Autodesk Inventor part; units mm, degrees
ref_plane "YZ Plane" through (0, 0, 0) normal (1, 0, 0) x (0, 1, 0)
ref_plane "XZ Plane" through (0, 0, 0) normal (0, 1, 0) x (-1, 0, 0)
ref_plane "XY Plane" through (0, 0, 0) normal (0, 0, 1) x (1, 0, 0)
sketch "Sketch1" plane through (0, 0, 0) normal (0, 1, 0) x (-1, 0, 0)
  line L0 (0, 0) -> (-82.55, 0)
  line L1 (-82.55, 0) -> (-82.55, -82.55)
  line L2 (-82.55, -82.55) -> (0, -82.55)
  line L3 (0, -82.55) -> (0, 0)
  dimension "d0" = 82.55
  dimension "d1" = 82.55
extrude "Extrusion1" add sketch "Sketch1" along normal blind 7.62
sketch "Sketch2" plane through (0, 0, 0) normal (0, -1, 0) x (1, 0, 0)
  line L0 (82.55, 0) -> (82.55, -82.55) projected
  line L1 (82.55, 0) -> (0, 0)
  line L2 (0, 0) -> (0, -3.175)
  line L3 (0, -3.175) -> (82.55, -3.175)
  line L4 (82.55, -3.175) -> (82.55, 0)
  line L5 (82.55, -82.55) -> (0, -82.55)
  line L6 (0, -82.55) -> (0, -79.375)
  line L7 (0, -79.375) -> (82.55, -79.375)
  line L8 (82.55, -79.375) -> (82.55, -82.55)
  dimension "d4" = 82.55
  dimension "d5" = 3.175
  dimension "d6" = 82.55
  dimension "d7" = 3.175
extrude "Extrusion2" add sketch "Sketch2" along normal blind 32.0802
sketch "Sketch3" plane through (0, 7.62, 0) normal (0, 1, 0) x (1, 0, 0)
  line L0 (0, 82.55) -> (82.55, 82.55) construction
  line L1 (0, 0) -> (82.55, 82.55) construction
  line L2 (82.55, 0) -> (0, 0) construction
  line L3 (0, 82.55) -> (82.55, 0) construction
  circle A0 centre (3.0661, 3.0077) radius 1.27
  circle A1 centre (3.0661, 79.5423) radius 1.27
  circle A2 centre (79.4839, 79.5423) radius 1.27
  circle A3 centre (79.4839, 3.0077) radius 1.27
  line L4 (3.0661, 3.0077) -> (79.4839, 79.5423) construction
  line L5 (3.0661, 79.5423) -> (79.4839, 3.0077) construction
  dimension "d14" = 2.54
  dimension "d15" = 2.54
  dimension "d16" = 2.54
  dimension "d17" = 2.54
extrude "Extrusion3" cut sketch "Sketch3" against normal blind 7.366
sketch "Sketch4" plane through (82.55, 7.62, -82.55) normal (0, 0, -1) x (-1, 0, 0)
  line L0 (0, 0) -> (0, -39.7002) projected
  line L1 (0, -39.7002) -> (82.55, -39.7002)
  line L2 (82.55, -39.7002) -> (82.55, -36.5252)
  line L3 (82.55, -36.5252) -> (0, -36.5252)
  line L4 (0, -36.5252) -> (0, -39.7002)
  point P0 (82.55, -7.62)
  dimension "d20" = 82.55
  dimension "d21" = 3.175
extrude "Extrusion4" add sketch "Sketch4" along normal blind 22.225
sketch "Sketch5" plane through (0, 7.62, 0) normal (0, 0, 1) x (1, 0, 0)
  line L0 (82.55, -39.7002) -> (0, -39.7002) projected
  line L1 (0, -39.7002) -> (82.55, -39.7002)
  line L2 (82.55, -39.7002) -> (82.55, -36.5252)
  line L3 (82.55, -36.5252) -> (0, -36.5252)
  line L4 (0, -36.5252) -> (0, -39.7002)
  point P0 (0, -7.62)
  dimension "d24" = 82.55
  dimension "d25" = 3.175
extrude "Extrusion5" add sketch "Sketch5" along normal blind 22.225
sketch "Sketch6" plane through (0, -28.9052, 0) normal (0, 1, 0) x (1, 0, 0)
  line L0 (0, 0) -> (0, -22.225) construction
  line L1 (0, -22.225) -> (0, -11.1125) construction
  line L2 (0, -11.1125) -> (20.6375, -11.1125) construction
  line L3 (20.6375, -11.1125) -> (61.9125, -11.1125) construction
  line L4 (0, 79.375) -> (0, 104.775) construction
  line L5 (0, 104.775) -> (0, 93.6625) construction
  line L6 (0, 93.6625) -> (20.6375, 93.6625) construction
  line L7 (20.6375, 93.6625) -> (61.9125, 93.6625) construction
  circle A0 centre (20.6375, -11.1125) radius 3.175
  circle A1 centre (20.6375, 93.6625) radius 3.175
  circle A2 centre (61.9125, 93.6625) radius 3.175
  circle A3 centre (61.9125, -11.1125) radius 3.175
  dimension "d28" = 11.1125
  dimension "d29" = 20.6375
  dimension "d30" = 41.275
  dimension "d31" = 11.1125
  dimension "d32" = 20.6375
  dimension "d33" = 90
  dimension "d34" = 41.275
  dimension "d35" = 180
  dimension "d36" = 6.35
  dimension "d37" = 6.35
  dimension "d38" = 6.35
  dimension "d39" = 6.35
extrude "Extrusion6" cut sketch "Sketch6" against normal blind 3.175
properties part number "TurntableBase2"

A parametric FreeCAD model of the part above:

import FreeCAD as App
import Part
import Sketcher

V = App.Vector
Q = App.Units.Quantity


def add_polygon(sketch, points):
    """Adds a closed chain of lines whose ends are joined by coincident constraints."""
    first, n = sketch.GeometryCount, len(points)
    for a, b in zip(points, points[1:] + points[:1]):
        sketch.addGeometry(Part.LineSegment(App.Vector(*a, 0), App.Vector(*b, 0)), False)
    for i in range(n):
        sketch.addConstraint(Sketcher.Constraint("Coincident", first + i, 2, first + (i + 1) % n, 1))

doc = App.newDocument("Part")
body = doc.addObject("PartDesign::Body", "Body")

# Sketch on XZ plane
sketch1 = doc.addObject("Sketcher::SketchObject", "Sketch")
body.addObject(sketch1)
sketch1.AttachmentSupport = (doc.XZ_Plane, [""])
sketch1.MapMode = "FlatFace"
add_polygon(sketch1, [(0, -83), (0, 0), (83, 0), (83, -83)])  # lines 0-3
sketch1.addConstraint([
    Sketcher.Constraint("Vertical", 0),
    Sketcher.Constraint("Horizontal", 1),
    Sketcher.Constraint("Vertical", 2),
    Sketcher.Constraint("Horizontal", 3),
    Sketcher.Constraint("Coincident", 0, 2, -1, 1),
    Sketcher.Constraint("Equal", 3, 0),
    Sketcher.Constraint("DistanceX", 1, 1, 1, 2, Q("3.25 in")),
])
pad1 = doc.addObject("PartDesign::Pad", "Pad")
body.addObject(pad1)
pad1.Profile = sketch1
pad1.Length = Q("0.3 in")
pad1.Reversed = True

# Sketch on XZ plane
sketch2 = doc.addObject("Sketcher::SketchObject", "Sketch001")
body.addObject(sketch2)
sketch2.AttachmentSupport = (doc.XZ_Plane, [""])
sketch2.MapMode = "FlatFace"
add_polygon(sketch2, [(82.5, -82.5), (82.5, -79.4), (0, -79.4), (0, -82.5)])  # lines 0-3
add_polygon(sketch2, [(82.5, -3.2), (82.5, 0), (0, 0), (0, -3.2)])  # lines 4-7
sketch2.addConstraint([
    Sketcher.Constraint("Vertical", 0),
    Sketcher.Constraint("Horizontal", 1),
    Sketcher.Constraint("Vertical", 2),
    Sketcher.Constraint("Horizontal", 3),
    Sketcher.Constraint("Vertical", 4),
    Sketcher.Constraint("Horizontal", 5),
    Sketcher.Constraint("Vertical", 6),
    Sketcher.Constraint("Horizontal", 7),
    Sketcher.Constraint("Coincident", 5, 2, -1, 1),
    Sketcher.Constraint("PointOnObject", 1, 2, -2),
    Sketcher.Constraint("Vertical", 3, 2, 4, 2),
    Sketcher.Constraint("Equal", 2, 4),
    Sketcher.Constraint("DistanceX", 1, 2, 1, 1, Q("3.25 in")),
    Sketcher.Constraint("DistanceY", 0, 1, 0, 2, Q("0.125 in")),
    Sketcher.Constraint("DistanceY", 2, 2, -1, 1, Q("3.25 in")),
])
pad2 = doc.addObject("PartDesign::Pad", "Pad001")
body.addObject(pad2)
pad2.Profile = sketch2
pad2.Length = Q("1.263 in")

# Sketch on XZ plane
sketch3 = doc.addObject("Sketcher::SketchObject", "Sketch002")
body.addObject(sketch3)
sketch3.AttachmentSupport = (doc.XZ_Plane, [""])
sketch3.MapMode = "FlatFace"
sketch3.AttachmentOffset = App.Placement(V(0, 0, -0.3 * 25.4), App.Rotation())
sketch3.addGeometry([
    Part.Circle(V(3.1, -3, 0), V(0, 0, 1), 1.3),
    Part.Circle(V(3.1, -79.5, 0), V(0, 0, 1), 1.3),
    Part.Circle(V(79.5, -79.5, 0), V(0, 0, 1), 1.3),
    Part.Circle(V(79.5, -3, 0), V(0, 0, 1), 1.3),
], False)
sketch3.addConstraint([
    Sketcher.Constraint("Equal", 0, 1),
    Sketcher.Constraint("Equal", 1, 2),
    Sketcher.Constraint("Equal", 2, 3),
    Sketcher.Constraint("Horizontal", 1, 3, 2, 3),
    Sketcher.Constraint("Horizontal", 0, 3, 3, 3),
    Sketcher.Constraint("Vertical", 0, 3, 1, 3),
    Sketcher.Constraint("Vertical", 2, 3, 3, 3),
    Sketcher.Constraint("Diameter", 0, Q("0.1 in")),
    Sketcher.Constraint("DistanceX", -1, 1, 0, 3, Q("0.1207087 in")),
    Sketcher.Constraint("DistanceY", 0, 3, -1, 1, 3.0077),
    Sketcher.Constraint("DistanceY", 1, 3, -1, 1, 79.5423),
    Sketcher.Constraint("DistanceX", -1, 1, 2, 3, Q("3.1292913 in")),
])
pocket1 = doc.addObject("PartDesign::Pocket", "Pocket")
body.addObject(pocket1)
pocket1.Profile = sketch3
pocket1.Length = Q("0.29 in")
pocket1.Reversed = True

# Sketch on XY plane
sketch4 = doc.addObject("Sketcher::SketchObject", "Sketch003")
body.addObject(sketch4)
sketch4.AttachmentSupport = (doc.XY_Plane, [""])
sketch4.MapMode = "FlatFace"
sketch4.AttachmentOffset = App.Placement(V(0, 0, -3.25 * 25.4), App.Rotation())
add_polygon(sketch4, [(0, -28.9), (82.5, -28.9), (82.5, -32.1), (0, -32.1)])  # lines 0-3
sketch4.addConstraint([
    Sketcher.Constraint("Horizontal", 0),
    Sketcher.Constraint("Vertical", 1),
    Sketcher.Constraint("Horizontal", 2),
    Sketcher.Constraint("Vertical", 3),
    Sketcher.Constraint("PointOnObject", 2, 2, -2),
    Sketcher.Constraint("DistanceX", 0, 1, 0, 2, Q("3.25 in")),
    Sketcher.Constraint("DistanceY", 1, 2, 1, 1, Q("0.125 in")),
    Sketcher.Constraint("DistanceY", 0, 2, -1, 1, Q("1.138 in")),
])
pad3 = doc.addObject("PartDesign::Pad", "Pad002")
body.addObject(pad3)
pad3.Profile = sketch4
pad3.Length = Q("0.875 in")
pad3.Reversed = True

# Sketch on XY plane
sketch5 = doc.addObject("Sketcher::SketchObject", "Sketch004")
body.addObject(sketch5)
sketch5.AttachmentSupport = (doc.XY_Plane, [""])
sketch5.MapMode = "FlatFace"
add_polygon(sketch5, [(0, -32.1), (82.5, -32.1), (82.5, -28.9), (0, -28.9)])  # lines 0-3
sketch5.addConstraint([
    Sketcher.Constraint("Horizontal", 0),
    Sketcher.Constraint("Vertical", 1),
    Sketcher.Constraint("Horizontal", 2),
    Sketcher.Constraint("Vertical", 3),
    Sketcher.Constraint("PointOnObject", 2, 2, -2),
    Sketcher.Constraint("DistanceX", 0, 1, 0, 2, Q("3.25 in")),
    Sketcher.Constraint("DistanceY", 1, 1, 1, 2, Q("0.125 in")),
    Sketcher.Constraint("DistanceY", 0, 2, -1, 1, Q("1.263 in")),
])
pad4 = doc.addObject("PartDesign::Pad", "Pad003")
body.addObject(pad4)
pad4.Profile = sketch5
pad4.Length = Q("0.875 in")

# Sketch on XZ plane
sketch6 = doc.addObject("Sketcher::SketchObject", "Sketch005")
body.addObject(sketch6)
sketch6.AttachmentSupport = (doc.XZ_Plane, [""])
sketch6.MapMode = "FlatFace"
sketch6.AttachmentOffset = App.Placement(V(0, 0, 1.138 * 25.4), App.Rotation())
sketch6.addGeometry([
    Part.Circle(V(20.6, 11.1, 0), V(0, 0, 1), 3.2),
    Part.Circle(V(20.6, -93.7, 0), V(0, 0, 1), 3.2),
    Part.Circle(V(61.9, -93.7, 0), V(0, 0, 1), 3.2),
    Part.Circle(V(61.9, 11.1, 0), V(0, 0, 1), 3.2),
], False)
sketch6.addConstraint([
    Sketcher.Constraint("Equal", 0, 1),
    Sketcher.Constraint("Equal", 1, 2),
    Sketcher.Constraint("Equal", 2, 3),
    Sketcher.Constraint("Horizontal", 1, 3, 2, 3),
    Sketcher.Constraint("Horizontal", 0, 3, 3, 3),
    Sketcher.Constraint("Vertical", 0, 3, 1, 3),
    Sketcher.Constraint("Vertical", 2, 3, 3, 3),
    Sketcher.Constraint("Diameter", 0, Q("0.25 in")),
    Sketcher.Constraint("DistanceX", -1, 1, 0, 3, Q("0.8125 in")),
    Sketcher.Constraint("DistanceY", -1, 1, 0, 3, Q("0.4375 in")),
    Sketcher.Constraint("DistanceX", 1, 3, 2, 3, Q("1.625 in")),
    Sketcher.Constraint("DistanceY", 1, 3, -1, 1, Q("3.6875 in")),
])
pocket2 = doc.addObject("PartDesign::Pocket", "Pocket001")
body.addObject(pocket2)
pocket2.Profile = sketch6
pocket2.Length = Q("0.125 in")
pocket2.Reversed = True

doc.recompute()
